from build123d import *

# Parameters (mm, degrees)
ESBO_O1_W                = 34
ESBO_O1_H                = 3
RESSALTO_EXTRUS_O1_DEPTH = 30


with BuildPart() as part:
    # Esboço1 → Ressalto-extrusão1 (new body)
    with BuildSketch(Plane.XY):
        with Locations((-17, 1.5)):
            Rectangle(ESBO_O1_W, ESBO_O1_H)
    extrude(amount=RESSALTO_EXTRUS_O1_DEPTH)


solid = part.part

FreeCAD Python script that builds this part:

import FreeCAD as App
import Part
import Sketcher
Q = App.Units.Quantity


def add_polygon(sketch, points):
    """Adds a closed chain of lines whose ends are joined by coincident constraints."""
    first, n = sketch.GeometryCount, len(points)
    for a, b in zip(points, points[1:] + points[:1]):
        sketch.addGeometry(Part.LineSegment(App.Vector(*a, 0), App.Vector(*b, 0)), False)
    for i in range(n):
        sketch.addConstraint(Sketcher.Constraint("Coincident", first + i, 2, first + (i + 1) % n, 1))

doc = App.newDocument("Part")
params = doc.addObject("Spreadsheet::Sheet", "Params")
for row, (alias, value) in enumerate([
    ("sketch1_width", "34 mm"),
    ("sketch1_height", "3 mm"),
    ("pad1_length", "30 mm"),
], start=1):
    params.set(f"A{row}", alias)
    params.set(f"B{row}", "=" + value)
    params.setAlias(f"B{row}", alias)

body = doc.addObject("PartDesign::Body", "Body")

# Sketch on XY plane
sketch1 = body.newObject("Sketcher::SketchObject", "Sketch")
sketch1.AttachmentSupport = (doc.getObject("XY_Plane"), [""])
sketch1.MapMode = "FlatFace"
add_polygon(sketch1, [(-34, 3), (-34, 0), (0, 0), (0, 3)])  # lines 0-3
sketch1.addConstraint(Sketcher.Constraint("Vertical", 0))
sketch1.addConstraint(Sketcher.Constraint("Horizontal", 1))
sketch1.addConstraint(Sketcher.Constraint("Vertical", 2))
sketch1.addConstraint(Sketcher.Constraint("Horizontal", 3))
sketch1.addConstraint(Sketcher.Constraint("Coincident", 1, 2, -1, 1))
sketch1.addConstraint(Sketcher.Constraint("DistanceX", 1, 1, 1, 2, Q("34 mm")))
sketch1.addConstraint(Sketcher.Constraint("DistanceY", 0, 2, 0, 1, Q("3 mm")))
sketch1.setExpression("Constraints[9]", "Params.sketch1_width")
sketch1.setExpression("Constraints[10]", "Params.sketch1_height")
pad1 = body.newObject("PartDesign::Pad", "Pad")
pad1.Profile = sketch1
pad1.setExpression("Length", "Params.pad1_length")

doc.recompute()
